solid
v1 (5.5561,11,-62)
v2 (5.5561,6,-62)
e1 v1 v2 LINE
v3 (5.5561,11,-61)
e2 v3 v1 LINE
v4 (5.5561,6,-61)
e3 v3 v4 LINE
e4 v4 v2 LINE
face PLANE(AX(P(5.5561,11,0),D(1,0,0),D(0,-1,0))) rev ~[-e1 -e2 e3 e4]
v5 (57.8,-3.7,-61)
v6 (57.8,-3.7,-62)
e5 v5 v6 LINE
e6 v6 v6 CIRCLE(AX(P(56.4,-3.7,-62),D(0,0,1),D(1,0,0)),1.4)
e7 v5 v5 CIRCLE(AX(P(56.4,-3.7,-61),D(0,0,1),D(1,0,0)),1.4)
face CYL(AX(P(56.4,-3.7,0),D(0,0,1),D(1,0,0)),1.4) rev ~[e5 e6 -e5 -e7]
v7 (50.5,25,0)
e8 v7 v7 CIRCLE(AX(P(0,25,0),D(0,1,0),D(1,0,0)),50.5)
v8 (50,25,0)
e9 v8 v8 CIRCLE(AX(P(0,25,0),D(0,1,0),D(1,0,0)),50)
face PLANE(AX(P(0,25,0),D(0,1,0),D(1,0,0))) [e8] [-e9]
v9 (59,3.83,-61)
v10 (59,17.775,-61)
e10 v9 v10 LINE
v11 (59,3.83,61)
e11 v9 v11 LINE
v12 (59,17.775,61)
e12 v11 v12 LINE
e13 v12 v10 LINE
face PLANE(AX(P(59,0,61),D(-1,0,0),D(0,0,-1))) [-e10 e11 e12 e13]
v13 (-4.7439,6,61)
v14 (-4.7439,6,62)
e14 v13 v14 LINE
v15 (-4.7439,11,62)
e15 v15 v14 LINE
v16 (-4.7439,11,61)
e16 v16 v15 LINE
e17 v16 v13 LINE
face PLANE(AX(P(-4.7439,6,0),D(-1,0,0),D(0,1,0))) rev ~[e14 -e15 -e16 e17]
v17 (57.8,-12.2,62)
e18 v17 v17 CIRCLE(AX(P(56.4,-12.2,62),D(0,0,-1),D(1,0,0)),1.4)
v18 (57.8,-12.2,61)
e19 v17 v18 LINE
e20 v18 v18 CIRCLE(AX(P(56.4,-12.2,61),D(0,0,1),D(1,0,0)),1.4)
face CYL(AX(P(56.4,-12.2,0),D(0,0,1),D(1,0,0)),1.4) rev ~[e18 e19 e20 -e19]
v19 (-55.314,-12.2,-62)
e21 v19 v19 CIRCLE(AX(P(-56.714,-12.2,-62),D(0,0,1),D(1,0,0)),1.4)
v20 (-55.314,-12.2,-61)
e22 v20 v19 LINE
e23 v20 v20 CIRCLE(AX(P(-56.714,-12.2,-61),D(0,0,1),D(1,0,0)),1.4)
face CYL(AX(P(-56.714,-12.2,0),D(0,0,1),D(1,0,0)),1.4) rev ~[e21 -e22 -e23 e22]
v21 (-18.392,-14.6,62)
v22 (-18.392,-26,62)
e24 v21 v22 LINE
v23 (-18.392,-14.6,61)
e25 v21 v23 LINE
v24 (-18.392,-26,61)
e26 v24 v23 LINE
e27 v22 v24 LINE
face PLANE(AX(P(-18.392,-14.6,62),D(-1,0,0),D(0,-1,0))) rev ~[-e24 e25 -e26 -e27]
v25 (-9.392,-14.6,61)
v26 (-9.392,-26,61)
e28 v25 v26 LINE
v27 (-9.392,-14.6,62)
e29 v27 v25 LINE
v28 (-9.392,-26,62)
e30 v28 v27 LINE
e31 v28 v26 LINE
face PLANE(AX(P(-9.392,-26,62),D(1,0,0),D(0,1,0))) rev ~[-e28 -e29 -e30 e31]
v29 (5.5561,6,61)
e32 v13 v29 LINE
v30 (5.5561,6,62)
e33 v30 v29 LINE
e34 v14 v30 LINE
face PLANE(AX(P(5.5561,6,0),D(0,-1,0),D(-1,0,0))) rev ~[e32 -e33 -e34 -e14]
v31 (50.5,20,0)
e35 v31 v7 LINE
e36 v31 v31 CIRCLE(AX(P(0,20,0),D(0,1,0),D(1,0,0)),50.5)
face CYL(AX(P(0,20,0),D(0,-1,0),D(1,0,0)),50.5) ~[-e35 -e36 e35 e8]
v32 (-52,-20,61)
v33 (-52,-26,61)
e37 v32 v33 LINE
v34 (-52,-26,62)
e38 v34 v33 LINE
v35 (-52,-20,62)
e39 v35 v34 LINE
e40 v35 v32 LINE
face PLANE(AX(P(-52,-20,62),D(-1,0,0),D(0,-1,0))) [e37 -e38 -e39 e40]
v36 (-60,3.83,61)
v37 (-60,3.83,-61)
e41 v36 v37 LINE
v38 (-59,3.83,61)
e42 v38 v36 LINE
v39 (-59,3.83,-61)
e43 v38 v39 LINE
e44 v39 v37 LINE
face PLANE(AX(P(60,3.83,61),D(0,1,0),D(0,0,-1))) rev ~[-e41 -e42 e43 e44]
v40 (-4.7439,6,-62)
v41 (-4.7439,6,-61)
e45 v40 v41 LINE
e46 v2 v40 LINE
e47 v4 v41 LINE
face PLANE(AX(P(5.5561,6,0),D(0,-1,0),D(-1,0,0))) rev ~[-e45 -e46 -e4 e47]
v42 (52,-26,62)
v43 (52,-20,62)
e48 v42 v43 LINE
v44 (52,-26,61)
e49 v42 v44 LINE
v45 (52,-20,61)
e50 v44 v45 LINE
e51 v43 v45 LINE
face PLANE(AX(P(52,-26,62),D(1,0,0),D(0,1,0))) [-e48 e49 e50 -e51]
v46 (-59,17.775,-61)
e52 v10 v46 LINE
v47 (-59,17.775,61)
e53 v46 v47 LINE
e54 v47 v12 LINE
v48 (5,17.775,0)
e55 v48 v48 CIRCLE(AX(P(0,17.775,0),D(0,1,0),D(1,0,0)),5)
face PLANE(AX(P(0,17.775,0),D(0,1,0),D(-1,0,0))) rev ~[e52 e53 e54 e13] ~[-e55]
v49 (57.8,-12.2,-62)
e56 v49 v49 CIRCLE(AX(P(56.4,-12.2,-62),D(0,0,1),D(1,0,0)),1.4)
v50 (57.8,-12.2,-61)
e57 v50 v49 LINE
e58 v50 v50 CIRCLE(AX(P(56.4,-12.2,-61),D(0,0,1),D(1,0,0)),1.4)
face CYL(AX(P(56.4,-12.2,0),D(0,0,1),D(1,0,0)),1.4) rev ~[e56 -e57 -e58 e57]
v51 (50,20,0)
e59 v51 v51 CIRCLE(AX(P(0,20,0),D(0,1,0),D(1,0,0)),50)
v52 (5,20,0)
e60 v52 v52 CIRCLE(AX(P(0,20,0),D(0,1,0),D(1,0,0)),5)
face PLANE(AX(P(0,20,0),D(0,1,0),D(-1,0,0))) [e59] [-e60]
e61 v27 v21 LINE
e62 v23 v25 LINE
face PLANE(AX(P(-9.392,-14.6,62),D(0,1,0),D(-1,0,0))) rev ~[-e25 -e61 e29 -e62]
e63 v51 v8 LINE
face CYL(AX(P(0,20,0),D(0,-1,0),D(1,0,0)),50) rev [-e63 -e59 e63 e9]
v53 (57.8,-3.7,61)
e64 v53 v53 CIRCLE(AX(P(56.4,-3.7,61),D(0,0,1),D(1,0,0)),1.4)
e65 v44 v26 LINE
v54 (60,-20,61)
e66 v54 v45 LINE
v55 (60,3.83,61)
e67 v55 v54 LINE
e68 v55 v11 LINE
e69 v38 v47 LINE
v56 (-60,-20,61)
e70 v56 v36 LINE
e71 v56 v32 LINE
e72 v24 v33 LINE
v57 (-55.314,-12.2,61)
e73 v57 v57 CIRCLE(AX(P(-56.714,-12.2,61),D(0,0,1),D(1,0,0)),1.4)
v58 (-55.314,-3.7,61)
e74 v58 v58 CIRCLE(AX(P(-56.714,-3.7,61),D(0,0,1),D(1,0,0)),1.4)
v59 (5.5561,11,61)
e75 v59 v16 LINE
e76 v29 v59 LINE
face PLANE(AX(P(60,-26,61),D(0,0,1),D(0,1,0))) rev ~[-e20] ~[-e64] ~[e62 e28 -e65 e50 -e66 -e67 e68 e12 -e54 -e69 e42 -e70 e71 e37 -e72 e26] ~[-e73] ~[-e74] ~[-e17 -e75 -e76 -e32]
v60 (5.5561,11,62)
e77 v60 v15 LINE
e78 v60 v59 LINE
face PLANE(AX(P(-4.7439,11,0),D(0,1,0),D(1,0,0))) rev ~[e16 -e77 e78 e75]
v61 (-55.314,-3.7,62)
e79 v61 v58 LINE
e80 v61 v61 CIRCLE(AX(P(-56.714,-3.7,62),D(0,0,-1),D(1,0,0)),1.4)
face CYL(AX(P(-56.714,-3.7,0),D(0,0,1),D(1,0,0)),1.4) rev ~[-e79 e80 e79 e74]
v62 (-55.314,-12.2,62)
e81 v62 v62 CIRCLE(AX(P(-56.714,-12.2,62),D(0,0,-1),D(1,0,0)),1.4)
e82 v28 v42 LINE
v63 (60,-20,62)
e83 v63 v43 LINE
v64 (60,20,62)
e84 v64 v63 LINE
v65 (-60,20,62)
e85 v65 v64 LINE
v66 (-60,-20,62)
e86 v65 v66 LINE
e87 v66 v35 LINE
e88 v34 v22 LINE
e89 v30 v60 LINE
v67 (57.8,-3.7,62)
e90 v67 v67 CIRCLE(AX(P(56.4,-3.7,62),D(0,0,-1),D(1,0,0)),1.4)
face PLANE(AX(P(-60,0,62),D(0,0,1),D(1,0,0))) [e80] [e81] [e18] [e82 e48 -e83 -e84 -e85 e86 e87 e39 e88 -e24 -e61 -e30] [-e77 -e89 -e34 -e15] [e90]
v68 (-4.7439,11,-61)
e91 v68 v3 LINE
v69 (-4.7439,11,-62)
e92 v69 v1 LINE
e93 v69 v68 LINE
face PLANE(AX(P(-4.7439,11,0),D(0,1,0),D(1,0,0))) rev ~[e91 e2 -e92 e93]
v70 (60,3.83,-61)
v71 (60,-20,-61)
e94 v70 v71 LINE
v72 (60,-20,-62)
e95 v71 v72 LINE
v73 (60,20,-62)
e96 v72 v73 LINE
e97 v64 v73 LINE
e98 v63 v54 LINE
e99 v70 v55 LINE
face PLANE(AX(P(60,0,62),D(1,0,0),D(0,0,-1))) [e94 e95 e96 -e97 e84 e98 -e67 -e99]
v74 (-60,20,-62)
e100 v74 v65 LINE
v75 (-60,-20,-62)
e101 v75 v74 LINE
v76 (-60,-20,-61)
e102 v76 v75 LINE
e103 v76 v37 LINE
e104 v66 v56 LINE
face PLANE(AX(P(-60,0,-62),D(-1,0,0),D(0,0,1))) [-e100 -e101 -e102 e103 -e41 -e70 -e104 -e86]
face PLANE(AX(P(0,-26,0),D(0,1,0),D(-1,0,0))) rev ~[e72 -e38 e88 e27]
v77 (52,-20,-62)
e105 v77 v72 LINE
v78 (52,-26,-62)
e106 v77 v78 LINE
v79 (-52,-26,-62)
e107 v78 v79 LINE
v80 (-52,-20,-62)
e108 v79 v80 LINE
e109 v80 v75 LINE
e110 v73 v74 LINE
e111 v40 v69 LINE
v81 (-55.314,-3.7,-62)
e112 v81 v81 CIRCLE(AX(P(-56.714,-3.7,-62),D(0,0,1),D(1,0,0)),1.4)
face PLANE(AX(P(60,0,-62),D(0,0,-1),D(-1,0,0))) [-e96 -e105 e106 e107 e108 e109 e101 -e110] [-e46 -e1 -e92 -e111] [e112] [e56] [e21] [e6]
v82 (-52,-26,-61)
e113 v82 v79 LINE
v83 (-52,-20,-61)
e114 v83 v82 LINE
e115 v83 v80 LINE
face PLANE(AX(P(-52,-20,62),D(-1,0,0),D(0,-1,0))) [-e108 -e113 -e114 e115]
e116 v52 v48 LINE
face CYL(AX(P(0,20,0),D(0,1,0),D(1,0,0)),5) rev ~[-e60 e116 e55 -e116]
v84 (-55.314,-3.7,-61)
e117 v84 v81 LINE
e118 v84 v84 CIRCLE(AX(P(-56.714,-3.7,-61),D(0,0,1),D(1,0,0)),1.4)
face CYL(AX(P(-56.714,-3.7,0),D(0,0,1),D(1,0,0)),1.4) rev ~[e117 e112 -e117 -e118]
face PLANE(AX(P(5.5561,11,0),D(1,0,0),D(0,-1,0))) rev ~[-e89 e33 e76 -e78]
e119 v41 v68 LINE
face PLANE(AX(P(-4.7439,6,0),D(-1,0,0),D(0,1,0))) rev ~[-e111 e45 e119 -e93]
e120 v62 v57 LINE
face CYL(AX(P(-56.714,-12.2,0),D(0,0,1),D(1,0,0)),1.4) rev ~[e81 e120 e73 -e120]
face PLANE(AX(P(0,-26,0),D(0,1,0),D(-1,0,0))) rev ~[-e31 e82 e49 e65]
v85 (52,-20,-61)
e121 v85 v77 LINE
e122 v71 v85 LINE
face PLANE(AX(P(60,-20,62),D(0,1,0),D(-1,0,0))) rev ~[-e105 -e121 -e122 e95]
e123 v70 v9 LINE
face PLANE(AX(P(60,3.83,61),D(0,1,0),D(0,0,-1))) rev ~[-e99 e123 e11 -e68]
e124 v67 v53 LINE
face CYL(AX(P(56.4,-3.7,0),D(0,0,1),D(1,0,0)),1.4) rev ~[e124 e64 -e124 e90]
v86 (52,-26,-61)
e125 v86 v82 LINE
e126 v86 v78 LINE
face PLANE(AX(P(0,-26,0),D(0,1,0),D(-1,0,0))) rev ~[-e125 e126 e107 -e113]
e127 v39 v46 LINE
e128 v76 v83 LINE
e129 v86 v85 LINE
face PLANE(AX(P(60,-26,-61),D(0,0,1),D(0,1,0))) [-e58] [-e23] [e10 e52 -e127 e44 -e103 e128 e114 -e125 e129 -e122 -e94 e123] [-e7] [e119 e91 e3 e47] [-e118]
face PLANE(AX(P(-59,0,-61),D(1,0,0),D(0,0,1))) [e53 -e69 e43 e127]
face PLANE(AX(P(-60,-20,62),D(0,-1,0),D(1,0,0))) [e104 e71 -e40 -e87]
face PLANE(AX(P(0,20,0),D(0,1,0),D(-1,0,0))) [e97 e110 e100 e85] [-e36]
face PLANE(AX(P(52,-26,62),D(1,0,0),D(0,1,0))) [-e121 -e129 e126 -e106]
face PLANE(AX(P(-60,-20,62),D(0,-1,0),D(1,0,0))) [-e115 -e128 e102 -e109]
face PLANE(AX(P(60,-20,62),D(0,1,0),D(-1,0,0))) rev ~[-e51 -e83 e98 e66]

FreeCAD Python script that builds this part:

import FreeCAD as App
import Part
import Sketcher
from FreeCAD import Vector
Q = App.Units.Quantity

doc = App.newDocument("Part")
params = doc.addObject("Spreadsheet::Sheet", "Params")
for row, (alias, value) in enumerate([
    ("sketch1_width", "120 mm"),
    ("sketch1_height", "124 mm"),
    ("pad1_length", "20 mm"),
    ("pad1_length2", "26 mm"),
    ("sketch2_diameter", "2.8 mm"),
    ("sketch2_height", "5 mm"),
    ("sketch2_width", "10.3 mm"),
    ("pocket1_length", "168.5875 mm"),
    ("sketch3_width", "118 mm"),
    ("sketch3_height", "122 mm"),
    ("pocket2_length", "3.83 mm"),
    ("pocket2_length2", "27.3 mm"),
    ("sketch4_diameter", "10 mm"),
    ("pocket3_length", "10 mm"),
    ("sketch5_diameter", "101 mm"),
    ("sketch5_diameter2", "100 mm"),
    ("pad2_length", "5 mm"),
    ("sketch6_width", "9 mm"),
    ("sketch6_height", "11.4 mm"),
    ("pocket4_length", "5 mm"),
    ("sketch7_height", "122 mm"),
    ("sketch7_width", "29.83 mm"),
    ("sketch8_width", "8 mm"),
    ("sketch8_height", "6 mm"),
    ("pocket6_length", "131.125 mm"),
    ("sketch9_width", "118 mm"),
    ("sketch9_height", "122 mm"),
    ("pocket7_length", "17.775 mm"),
], start=1):
    params.set(f"A{row}", alias)
    params.set(f"B{row}", "=" + value)
    params.setAlias(f"B{row}", alias)

body = doc.addObject("PartDesign::Body", "Body")

sketch1 = body.newObject("Sketcher::SketchObject", "Sketch")
sketch1.AttachmentSupport = (doc.getObject("XZ_Plane"), [""])
sketch1.MapMode = "FlatFace"
sketch1.addGeometry([
    Part.LineSegment(Vector(60, 62, 0), Vector(60, -62, 0)),
    Part.LineSegment(Vector(60, -62, 0), Vector(-60, -62, 0)),
    Part.LineSegment(Vector(-60, -62, 0), Vector(-60, 62, 0)),
    Part.LineSegment(Vector(-60, 62, 0), Vector(60, 62, 0)),
], False)
sketch1.addConstraint([
    Sketcher.Constraint("Coincident", 0, 2, 1, 1),
    Sketcher.Constraint("Coincident", 1, 2, 2, 1),
    Sketcher.Constraint("Coincident", 2, 2, 3, 1),
    Sketcher.Constraint("Coincident", 3, 2, 0, 1),
    Sketcher.Constraint("Vertical", 0),
    Sketcher.Constraint("Horizontal", 1),
    Sketcher.Constraint("Vertical", 2),
    Sketcher.Constraint("Horizontal", 3),
    Sketcher.Constraint("Symmetric", 0, 2, 2, 2, -1, 1),
    Sketcher.Constraint("DistanceX", 1, 2, 1, 1, Q("120 mm")),
    Sketcher.Constraint("DistanceY", 0, 2, 0, 1, Q("124 mm")),
])
sketch1.setExpression("Constraints[9]", "Params.sketch1_width")
sketch1.setExpression("Constraints[10]", "Params.sketch1_height")
pad1 = body.newObject("PartDesign::Pad", "Pad")
pad1.Profile = sketch1
pad1.Type = "TwoLengths"
pad1.setExpression("Length", "Params.pad1_length")
pad1.setExpression("Length2", "Params.pad1_length2")
pad1.Reversed = True

sketch2 = body.newObject("Sketcher::SketchObject", "Sketch001")
sketch2.AttachmentSupport = (doc.getObject("XY_Plane"), [""])
sketch2.MapMode = "FlatFace"
sketch2.addGeometry([
    Part.Circle(Vector(-56.714, -3.7, 0), Vector(0, 0, 1), 1.4),
    Part.Circle(Vector(-56.714, -12.2, 0), Vector(0, 0, 1), 1.4),
    Part.Circle(Vector(56.4, -3.7, 0), Vector(0, 0, 1), 1.4),
    Part.Circle(Vector(56.4, -12.2, 0), Vector(0, 0, 1), 1.4),
    Part.LineSegment(Vector(5.5561, 11, 0), Vector(-4.7439, 11, 0)),
    Part.LineSegment(Vector(-4.7439, 11, 0), Vector(-4.7439, 6, 0)),
    Part.LineSegment(Vector(-4.7439, 6, 0), Vector(5.5561, 6, 0)),
    Part.LineSegment(Vector(5.5561, 6, 0), Vector(5.5561, 11, 0)),
], False)
sketch2.addConstraint([
    Sketcher.Constraint("Coincident", 4, 2, 5, 1),
    Sketcher.Constraint("Coincident", 5, 2, 6, 1),
    Sketcher.Constraint("Coincident", 6, 2, 7, 1),
    Sketcher.Constraint("Coincident", 7, 2, 4, 1),
    Sketcher.Constraint("Horizontal", 4),
    Sketcher.Constraint("Vertical", 5),
    Sketcher.Constraint("Horizontal", 6),
    Sketcher.Constraint("Vertical", 7),
    Sketcher.Constraint("Equal", 0, 1),
    Sketcher.Constraint("Equal", 1, 2),
    Sketcher.Constraint("Equal", 2, 3),
    Sketcher.Constraint("Horizontal", 0, 3, 2, 3),
    Sketcher.Constraint("Horizontal", 1, 3, 3, 3),
    Sketcher.Constraint("Vertical", 0, 3, 1, 3),
    Sketcher.Constraint("Vertical", 2, 3, 3, 3),
    Sketcher.Constraint("Diameter", 0, Q("2.8 mm")),
    Sketcher.Constraint("DistanceY", 5, 2, 5, 1, Q("5 mm")),
    Sketcher.Constraint("DistanceX", 4, 2, 4, 1, Q("10.3 mm")),
    Sketcher.Constraint("DistanceY", 1, 3, 0, 3, Q("8.5 mm")),
    Sketcher.Constraint("DistanceY", -1, 1, 4, 2, Q("11 mm")),
    Sketcher.Constraint("DistanceY", 0, 3, -1, 1, Q("3.7 mm")),
    Sketcher.Constraint("DistanceX", -1, 1, 2, 3, Q("56.4 mm")),
    Sketcher.Constraint("DistanceX", 0, 3, 4, 2, Q("51.97 mm")),
    Sketcher.Constraint("DistanceX", 0, 3, -1, 1, Q("56.714 mm")),
])
sketch2.setExpression("Constraints[15]", "Params.sketch2_diameter")
sketch2.setExpression("Constraints[16]", "Params.sketch2_height")
sketch2.setExpression("Constraints[17]", "Params.sketch2_width")
pocket1 = body.newObject("PartDesign::Pocket", "Pocket")
pocket1.Profile = sketch2
pocket1.setExpression("Length", "Params.pocket1_length")
pocket1.Midplane = True

sketch3 = body.newObject("Sketcher::SketchObject", "Sketch002")
sketch3.AttachmentSupport = (doc.getObject("XZ_Plane"), [""])
sketch3.MapMode = "FlatFace"
sketch3.addGeometry([
    Part.LineSegment(Vector(59, 61, 0), Vector(59, -61, 0)),
    Part.LineSegment(Vector(59, -61, 0), Vector(-59, -61, 0)),
    Part.LineSegment(Vector(-59, -61, 0), Vector(-59, 61, 0)),
    Part.LineSegment(Vector(-59, 61, 0), Vector(59, 61, 0)),
], False)
sketch3.addConstraint([
    Sketcher.Constraint("Coincident", 0, 2, 1, 1),
    Sketcher.Constraint("Coincident", 1, 2, 2, 1),
    Sketcher.Constraint("Coincident", 2, 2, 3, 1),
    Sketcher.Constraint("Coincident", 3, 2, 0, 1),
    Sketcher.Constraint("Vertical", 0),
    Sketcher.Constraint("Horizontal", 1),
    Sketcher.Constraint("Vertical", 2),
    Sketcher.Constraint("Horizontal", 3),
    Sketcher.Constraint("Symmetric", 0, 2, 2, 2, -1, 1),
    Sketcher.Constraint("DistanceX", 1, 2, 1, 1, Q("118 mm")),
    Sketcher.Constraint("DistanceY", 0, 2, 0, 1, Q("122 mm")),
])
sketch3.setExpression("Constraints[9]", "Params.sketch3_width")
sketch3.setExpression("Constraints[10]", "Params.sketch3_height")
pocket2 = body.newObject("PartDesign::Pocket", "Pocket001")
pocket2.Profile = sketch3
pocket2.Type = "TwoLengths"
pocket2.setExpression("Length", "Params.pocket2_length")
pocket2.setExpression("Length2", "Params.pocket2_length2")

sketch4 = body.newObject("Sketcher::SketchObject", "Sketch003")
sketch4.AttachmentSupport = (doc.getObject("XZ_Plane"), [""])
sketch4.MapMode = "FlatFace"
sketch4.AttachmentOffset = App.Placement(Vector(0, 0, -20), App.Rotation())
sketch4.addGeometry(Part.Circle(Vector(0, 0, 0), Vector(0, 0, 1), 5), False)
sketch4.addConstraint([
    Sketcher.Constraint("Coincident", 0, 3, -1, 1),
    Sketcher.Constraint("Diameter", 0, Q("10 mm")),
])
sketch4.setExpression("Constraints[1]", "Params.sketch4_diameter")
pocket3 = body.newObject("PartDesign::Pocket", "Pocket002")
pocket3.Profile = sketch4
pocket3.setExpression("Length", "Params.pocket3_length")
pocket3.Midplane = True

sketch5 = body.newObject("Sketcher::SketchObject", "Sketch004")
sketch5.AttachmentSupport = (doc.getObject("XZ_Plane"), [""])
sketch5.MapMode = "FlatFace"
sketch5.AttachmentOffset = App.Placement(Vector(0, 0, -20), App.Rotation())
sketch5.addGeometry([
    Part.Circle(Vector(0, 0, 0), Vector(0, 0, 1), 50.5),
    Part.Circle(Vector(0, 0, 0), Vector(0, 0, 1), 50),
], False)
sketch5.addConstraint([
    Sketcher.Constraint("Coincident", 0, 3, -1, 1),
    Sketcher.Constraint("Coincident", 1, 3, -1, 1),
    Sketcher.Constraint("Diameter", 0, Q("101 mm")),
    Sketcher.Constraint("Diameter", 1, Q("100 mm")),
])
sketch5.setExpression("Constraints[2]", "Params.sketch5_diameter")
sketch5.setExpression("Constraints[3]", "Params.sketch5_diameter2")
pad2 = body.newObject("PartDesign::Pad", "Pad001")
pad2.Profile = sketch5
pad2.setExpression("Length", "Params.pad2_length")
pad2.Reversed = True

sketch6 = body.newObject("Sketcher::SketchObject", "Sketch005")
sketch6.AttachmentSupport = (doc.getObject("XY_Plane"), [""])
sketch6.MapMode = "FlatFace"
sketch6.AttachmentOffset = App.Placement(Vector(0, 0, 62), App.Rotation())
sketch6.addGeometry([
    Part.LineSegment(Vector(-18.392, -14.6, 0), Vector(-18.392, -26, 0)),
    Part.LineSegment(Vector(-18.392, -26, 0), Vector(-9.392, -26, 0)),
    Part.LineSegment(Vector(-9.392, -26, 0), Vector(-9.392, -14.6, 0)),
    Part.LineSegment(Vector(-9.392, -14.6, 0), Vector(-18.392, -14.6, 0)),
], False)
sketch6.addConstraint([
    Sketcher.Constraint("Coincident", 0, 2, 1, 1),
    Sketcher.Constraint("Coincident", 1, 2, 2, 1),
    Sketcher.Constraint("Coincident", 2, 2, 3, 1),
    Sketcher.Constraint("Coincident", 3, 2, 0, 1),
    Sketcher.Constraint("Vertical", 0),
    Sketcher.Constraint("Horizontal", 1),
    Sketcher.Constraint("Vertical", 2),
    Sketcher.Constraint("Horizontal", 3),
    Sketcher.Constraint("DistanceX", 1, 1, 1, 2, Q("9 mm")),
    Sketcher.Constraint("DistanceY", 0, 2, 0, 1, Q("11.4 mm")),
    Sketcher.Constraint("DistanceY", 0, 2, -1, 1, Q("26 mm")),
    Sketcher.Constraint("DistanceX", 0, 2, -1, 1, Q("18.392 mm")),
])
sketch6.setExpression("Constraints[8]", "Params.sketch6_width")
sketch6.setExpression("Constraints[9]", "Params.sketch6_height")
pocket4 = body.newObject("PartDesign::Pocket", "Pocket003")
pocket4.Profile = sketch6
pocket4.setExpression("Length", "Params.pocket4_length")

sketch7 = body.newObject("Sketcher::SketchObject", "Sketch006")
sketch7.AttachmentSupport = (doc.getObject("YZ_Plane"), [""])
sketch7.MapMode = "FlatFace"
sketch7.AttachmentOffset = App.Placement(Vector(0, 0, 60), App.Rotation())
sketch7.addGeometry([
    Part.LineSegment(Vector(3.83, 61, 0), Vector(-26, 61, 0)),
    Part.LineSegment(Vector(-26, 61, 0), Vector(-26, -61, 0)),
    Part.LineSegment(Vector(-26, -61, 0), Vector(3.83, -61, 0)),
    Part.LineSegment(Vector(3.83, -61, 0), Vector(3.83, 61, 0)),
], False)
sketch7.addConstraint([
    Sketcher.Constraint("Coincident", 0, 2, 1, 1),
    Sketcher.Constraint("Coincident", 1, 2, 2, 1),
    Sketcher.Constraint("Coincident", 2, 2, 3, 1),
    Sketcher.Constraint("Coincident", 3, 2, 0, 1),
    Sketcher.Constraint("Horizontal", 0),
    Sketcher.Constraint("Vertical", 1),
    Sketcher.Constraint("Horizontal", 2),
    Sketcher.Constraint("Vertical", 3),
    Sketcher.Constraint("DistanceY", 1, 2, 1, 1, Q("122 mm")),
    Sketcher.Constraint("DistanceX", 0, 2, -1, 1, Q("26 mm")),
    Sketcher.Constraint("DistanceY", -1, 1, 0, 2, Q("61 mm")),
    Sketcher.Constraint("DistanceX", 0, 2, 0, 1, Q("29.83 mm")),
])
sketch7.setExpression("Constraints[8]", "Params.sketch7_height")
sketch7.setExpression("Constraints[11]", "Params.sketch7_width")
pocket5 = body.newObject("PartDesign::Pocket", "Pocket004")
pocket5.Profile = sketch7
pocket5.Type = "ThroughAll"
pocket5.Midplane = True

sketch8 = body.newObject("Sketcher::SketchObject", "Sketch007")
sketch8.AttachmentSupport = (doc.getObject("XY_Plane"), [""])
sketch8.MapMode = "FlatFace"
sketch8.AttachmentOffset = App.Placement(Vector(0, 0, 62), App.Rotation())
sketch8.addGeometry([
    Part.LineSegment(Vector(-52, -20, 0), Vector(-60, -20, 0)),
    Part.LineSegment(Vector(-60, -20, 0), Vector(-60, -26, 0)),
    Part.LineSegment(Vector(-60, -26, 0), Vector(-52, -26, 0)),
    Part.LineSegment(Vector(-52, -26, 0), Vector(-52, -20, 0)),
    Part.LineSegment(Vector(60, -26, 0), Vector(60, -20, 0)),
    Part.LineSegment(Vector(60, -20, 0), Vector(52, -20, 0)),
    Part.LineSegment(Vector(52, -20, 0), Vector(52, -26, 0)),
    Part.LineSegment(Vector(52, -26, 0), Vector(60, -26, 0)),
], False)
sketch8.addConstraint([
    Sketcher.Constraint("Coincident", 0, 2, 1, 1),
    Sketcher.Constraint("Coincident", 1, 2, 2, 1),
    Sketcher.Constraint("Coincident", 2, 2, 3, 1),
    Sketcher.Constraint("Coincident", 3, 2, 0, 1),
    Sketcher.Constraint("Coincident", 4, 2, 5, 1),
    Sketcher.Constraint("Coincident", 5, 2, 6, 1),
    Sketcher.Constraint("Coincident", 6, 2, 7, 1),
    Sketcher.Constraint("Coincident", 7, 2, 4, 1),
    Sketcher.Constraint("Horizontal", 0),
    Sketcher.Constraint("Vertical", 1),
    Sketcher.Constraint("Horizontal", 2),
    Sketcher.Constraint("Vertical", 3),
    Sketcher.Constraint("Vertical", 4),
    Sketcher.Constraint("Horizontal", 5),
    Sketcher.Constraint("Vertical", 6),
    Sketcher.Constraint("Horizontal", 7),
    Sketcher.Constraint("Symmetric", 0, 2, 4, 2, -2),
    Sketcher.Constraint("Symmetric", 2, 2, 6, 2, -2),
    Sketcher.Constraint("DistanceX", 0, 2, 0, 1, Q("8 mm")),
    Sketcher.Constraint("DistanceY", 1, 2, 1, 1, Q("6 mm")),
    Sketcher.Constraint("DistanceX", 0, 2, -1, 1, Q("60 mm")),
    Sketcher.Constraint("DistanceY", 0, 2, -1, 1, Q("20 mm")),
])
sketch8.setExpression("Constraints[18]", "Params.sketch8_width")
sketch8.setExpression("Constraints[19]", "Params.sketch8_height")
pocket6 = body.newObject("PartDesign::Pocket", "Pocket005")
pocket6.Profile = sketch8
pocket6.setExpression("Length", "Params.pocket6_length")

sketch9 = body.newObject("Sketcher::SketchObject", "Sketch008")
sketch9.AttachmentSupport = (doc.getObject("XZ_Plane"), [""])
sketch9.MapMode = "FlatFace"
sketch9.addGeometry([
    Part.LineSegment(Vector(59, 61, 0), Vector(59, -61, 0)),
    Part.LineSegment(Vector(59, -61, 0), Vector(-59, -61, 0)),
    Part.LineSegment(Vector(-59, -61, 0), Vector(-59, 61, 0)),
    Part.LineSegment(Vector(-59, 61, 0), Vector(59, 61, 0)),
], False)
sketch9.addConstraint([
    Sketcher.Constraint("Coincident", 0, 2, 1, 1),
    Sketcher.Constraint("Coincident", 1, 2, 2, 1),
    Sketcher.Constraint("Coincident", 2, 2, 3, 1),
    Sketcher.Constraint("Coincident", 3, 2, 0, 1),
    Sketcher.Constraint("Vertical", 0),
    Sketcher.Constraint("Horizontal", 1),
    Sketcher.Constraint("Vertical", 2),
    Sketcher.Constraint("Horizontal", 3),
    Sketcher.Constraint("Symmetric", 0, 2, 2, 2, -1, 1),
    Sketcher.Constraint("DistanceX", 1, 2, 1, 1, Q("118 mm")),
    Sketcher.Constraint("DistanceY", 0, 2, 0, 1, Q("122 mm")),
])
sketch9.setExpression("Constraints[9]", "Params.sketch9_width")
sketch9.setExpression("Constraints[10]", "Params.sketch9_height")
pocket7 = body.newObject("PartDesign::Pocket", "Pocket006")
pocket7.Profile = sketch9
pocket7.setExpression("Length", "Params.pocket7_length")

doc.recompute()
